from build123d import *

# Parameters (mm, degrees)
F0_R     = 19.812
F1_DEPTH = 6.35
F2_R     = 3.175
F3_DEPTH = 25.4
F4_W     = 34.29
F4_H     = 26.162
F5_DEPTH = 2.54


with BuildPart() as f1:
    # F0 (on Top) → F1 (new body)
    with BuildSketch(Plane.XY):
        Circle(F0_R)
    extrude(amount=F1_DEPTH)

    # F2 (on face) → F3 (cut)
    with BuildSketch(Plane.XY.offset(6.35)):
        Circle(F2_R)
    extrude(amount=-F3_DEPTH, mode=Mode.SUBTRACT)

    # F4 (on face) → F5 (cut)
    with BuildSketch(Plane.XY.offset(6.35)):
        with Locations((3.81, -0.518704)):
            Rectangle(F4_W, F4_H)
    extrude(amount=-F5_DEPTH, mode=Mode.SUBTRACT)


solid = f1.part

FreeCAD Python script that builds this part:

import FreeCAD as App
import Part
import Sketcher
Q = App.Units.Quantity


def add_polygon(sketch, points):
    """Adds a closed chain of lines whose ends are joined by coincident constraints."""
    first, n = sketch.GeometryCount, len(points)
    for a, b in zip(points, points[1:] + points[:1]):
        sketch.addGeometry(Part.LineSegment(App.Vector(*a, 0), App.Vector(*b, 0)), False)
    for i in range(n):
        sketch.addConstraint(Sketcher.Constraint("Coincident", first + i, 2, first + (i + 1) % n, 1))

doc = App.newDocument("Part")
body = doc.addObject("PartDesign::Body", "Body")

# Sketch on XY plane
sketch1 = body.newObject("Sketcher::SketchObject", "Sketch")
sketch1.AttachmentSupport = (doc.getObject("XY_Plane"), [""])
sketch1.MapMode = "FlatFace"
sketch1.addGeometry(Part.Circle(App.Vector(0, 0, 0), App.Vector(0, 0, 1), 20), False)
sketch1.addConstraint(Sketcher.Constraint("Coincident", 0, 3, -1, 1))
sketch1.addConstraint(Sketcher.Constraint("Diameter", 0, Q("1.56 in")))
pad1 = body.newObject("PartDesign::Pad", "Pad")
pad1.Profile = sketch1
pad1.Length = Q("0.25 in")

# Sketch on XY plane
sketch2 = body.newObject("Sketcher::SketchObject", "Sketch001")
sketch2.AttachmentSupport = (doc.getObject("XY_Plane"), [""])
sketch2.MapMode = "FlatFace"
sketch2.AttachmentOffset = App.Placement(App.Vector(0, 0, 0.25 * 25.4), App.Rotation())
sketch2.addGeometry(Part.Circle(App.Vector(0, 0, 0), App.Vector(0, 0, 1), 3.2), False)
sketch2.addConstraint(Sketcher.Constraint("Coincident", 0, 3, -1, 1))
sketch2.addConstraint(Sketcher.Constraint("Diameter", 0, Q("0.25 in")))
pocket1 = body.newObject("PartDesign::Pocket", "Pocket")
pocket1.Profile = sketch2
pocket1.Length = Q("1 in")

# Sketch on XY plane
sketch3 = body.newObject("Sketcher::SketchObject", "Sketch002")
sketch3.AttachmentSupport = (doc.getObject("XY_Plane"), [""])
sketch3.MapMode = "FlatFace"
sketch3.AttachmentOffset = App.Placement(App.Vector(0, 0, 0.25 * 25.4), App.Rotation())
add_polygon(sketch3, [(-13, 13), (-13, -14), (21, -14), (21, 13)])  # lines 0-3
sketch3.addConstraint(Sketcher.Constraint("Vertical", 0))
sketch3.addConstraint(Sketcher.Constraint("Horizontal", 1))
sketch3.addConstraint(Sketcher.Constraint("Vertical", 2))
sketch3.addConstraint(Sketcher.Constraint("Horizontal", 3))
sketch3.addConstraint(Sketcher.Constraint("DistanceX", 1, 1, 1, 2, Q("1.35 in")))
sketch3.addConstraint(Sketcher.Constraint("DistanceY", 0, 2, 0, 1, Q("1.03 in")))
sketch3.addConstraint(Sketcher.Constraint("DistanceX", 0, 2, -1, 1, Q("0.525 in")))
sketch3.addConstraint(Sketcher.Constraint("DistanceY", 0, 2, -1, 1, 13.599704))
pocket2 = body.newObject("PartDesign::Pocket", "Pocket001")
pocket2.Profile = sketch3
pocket2.Length = Q("0.1 in")

doc.recompute()
